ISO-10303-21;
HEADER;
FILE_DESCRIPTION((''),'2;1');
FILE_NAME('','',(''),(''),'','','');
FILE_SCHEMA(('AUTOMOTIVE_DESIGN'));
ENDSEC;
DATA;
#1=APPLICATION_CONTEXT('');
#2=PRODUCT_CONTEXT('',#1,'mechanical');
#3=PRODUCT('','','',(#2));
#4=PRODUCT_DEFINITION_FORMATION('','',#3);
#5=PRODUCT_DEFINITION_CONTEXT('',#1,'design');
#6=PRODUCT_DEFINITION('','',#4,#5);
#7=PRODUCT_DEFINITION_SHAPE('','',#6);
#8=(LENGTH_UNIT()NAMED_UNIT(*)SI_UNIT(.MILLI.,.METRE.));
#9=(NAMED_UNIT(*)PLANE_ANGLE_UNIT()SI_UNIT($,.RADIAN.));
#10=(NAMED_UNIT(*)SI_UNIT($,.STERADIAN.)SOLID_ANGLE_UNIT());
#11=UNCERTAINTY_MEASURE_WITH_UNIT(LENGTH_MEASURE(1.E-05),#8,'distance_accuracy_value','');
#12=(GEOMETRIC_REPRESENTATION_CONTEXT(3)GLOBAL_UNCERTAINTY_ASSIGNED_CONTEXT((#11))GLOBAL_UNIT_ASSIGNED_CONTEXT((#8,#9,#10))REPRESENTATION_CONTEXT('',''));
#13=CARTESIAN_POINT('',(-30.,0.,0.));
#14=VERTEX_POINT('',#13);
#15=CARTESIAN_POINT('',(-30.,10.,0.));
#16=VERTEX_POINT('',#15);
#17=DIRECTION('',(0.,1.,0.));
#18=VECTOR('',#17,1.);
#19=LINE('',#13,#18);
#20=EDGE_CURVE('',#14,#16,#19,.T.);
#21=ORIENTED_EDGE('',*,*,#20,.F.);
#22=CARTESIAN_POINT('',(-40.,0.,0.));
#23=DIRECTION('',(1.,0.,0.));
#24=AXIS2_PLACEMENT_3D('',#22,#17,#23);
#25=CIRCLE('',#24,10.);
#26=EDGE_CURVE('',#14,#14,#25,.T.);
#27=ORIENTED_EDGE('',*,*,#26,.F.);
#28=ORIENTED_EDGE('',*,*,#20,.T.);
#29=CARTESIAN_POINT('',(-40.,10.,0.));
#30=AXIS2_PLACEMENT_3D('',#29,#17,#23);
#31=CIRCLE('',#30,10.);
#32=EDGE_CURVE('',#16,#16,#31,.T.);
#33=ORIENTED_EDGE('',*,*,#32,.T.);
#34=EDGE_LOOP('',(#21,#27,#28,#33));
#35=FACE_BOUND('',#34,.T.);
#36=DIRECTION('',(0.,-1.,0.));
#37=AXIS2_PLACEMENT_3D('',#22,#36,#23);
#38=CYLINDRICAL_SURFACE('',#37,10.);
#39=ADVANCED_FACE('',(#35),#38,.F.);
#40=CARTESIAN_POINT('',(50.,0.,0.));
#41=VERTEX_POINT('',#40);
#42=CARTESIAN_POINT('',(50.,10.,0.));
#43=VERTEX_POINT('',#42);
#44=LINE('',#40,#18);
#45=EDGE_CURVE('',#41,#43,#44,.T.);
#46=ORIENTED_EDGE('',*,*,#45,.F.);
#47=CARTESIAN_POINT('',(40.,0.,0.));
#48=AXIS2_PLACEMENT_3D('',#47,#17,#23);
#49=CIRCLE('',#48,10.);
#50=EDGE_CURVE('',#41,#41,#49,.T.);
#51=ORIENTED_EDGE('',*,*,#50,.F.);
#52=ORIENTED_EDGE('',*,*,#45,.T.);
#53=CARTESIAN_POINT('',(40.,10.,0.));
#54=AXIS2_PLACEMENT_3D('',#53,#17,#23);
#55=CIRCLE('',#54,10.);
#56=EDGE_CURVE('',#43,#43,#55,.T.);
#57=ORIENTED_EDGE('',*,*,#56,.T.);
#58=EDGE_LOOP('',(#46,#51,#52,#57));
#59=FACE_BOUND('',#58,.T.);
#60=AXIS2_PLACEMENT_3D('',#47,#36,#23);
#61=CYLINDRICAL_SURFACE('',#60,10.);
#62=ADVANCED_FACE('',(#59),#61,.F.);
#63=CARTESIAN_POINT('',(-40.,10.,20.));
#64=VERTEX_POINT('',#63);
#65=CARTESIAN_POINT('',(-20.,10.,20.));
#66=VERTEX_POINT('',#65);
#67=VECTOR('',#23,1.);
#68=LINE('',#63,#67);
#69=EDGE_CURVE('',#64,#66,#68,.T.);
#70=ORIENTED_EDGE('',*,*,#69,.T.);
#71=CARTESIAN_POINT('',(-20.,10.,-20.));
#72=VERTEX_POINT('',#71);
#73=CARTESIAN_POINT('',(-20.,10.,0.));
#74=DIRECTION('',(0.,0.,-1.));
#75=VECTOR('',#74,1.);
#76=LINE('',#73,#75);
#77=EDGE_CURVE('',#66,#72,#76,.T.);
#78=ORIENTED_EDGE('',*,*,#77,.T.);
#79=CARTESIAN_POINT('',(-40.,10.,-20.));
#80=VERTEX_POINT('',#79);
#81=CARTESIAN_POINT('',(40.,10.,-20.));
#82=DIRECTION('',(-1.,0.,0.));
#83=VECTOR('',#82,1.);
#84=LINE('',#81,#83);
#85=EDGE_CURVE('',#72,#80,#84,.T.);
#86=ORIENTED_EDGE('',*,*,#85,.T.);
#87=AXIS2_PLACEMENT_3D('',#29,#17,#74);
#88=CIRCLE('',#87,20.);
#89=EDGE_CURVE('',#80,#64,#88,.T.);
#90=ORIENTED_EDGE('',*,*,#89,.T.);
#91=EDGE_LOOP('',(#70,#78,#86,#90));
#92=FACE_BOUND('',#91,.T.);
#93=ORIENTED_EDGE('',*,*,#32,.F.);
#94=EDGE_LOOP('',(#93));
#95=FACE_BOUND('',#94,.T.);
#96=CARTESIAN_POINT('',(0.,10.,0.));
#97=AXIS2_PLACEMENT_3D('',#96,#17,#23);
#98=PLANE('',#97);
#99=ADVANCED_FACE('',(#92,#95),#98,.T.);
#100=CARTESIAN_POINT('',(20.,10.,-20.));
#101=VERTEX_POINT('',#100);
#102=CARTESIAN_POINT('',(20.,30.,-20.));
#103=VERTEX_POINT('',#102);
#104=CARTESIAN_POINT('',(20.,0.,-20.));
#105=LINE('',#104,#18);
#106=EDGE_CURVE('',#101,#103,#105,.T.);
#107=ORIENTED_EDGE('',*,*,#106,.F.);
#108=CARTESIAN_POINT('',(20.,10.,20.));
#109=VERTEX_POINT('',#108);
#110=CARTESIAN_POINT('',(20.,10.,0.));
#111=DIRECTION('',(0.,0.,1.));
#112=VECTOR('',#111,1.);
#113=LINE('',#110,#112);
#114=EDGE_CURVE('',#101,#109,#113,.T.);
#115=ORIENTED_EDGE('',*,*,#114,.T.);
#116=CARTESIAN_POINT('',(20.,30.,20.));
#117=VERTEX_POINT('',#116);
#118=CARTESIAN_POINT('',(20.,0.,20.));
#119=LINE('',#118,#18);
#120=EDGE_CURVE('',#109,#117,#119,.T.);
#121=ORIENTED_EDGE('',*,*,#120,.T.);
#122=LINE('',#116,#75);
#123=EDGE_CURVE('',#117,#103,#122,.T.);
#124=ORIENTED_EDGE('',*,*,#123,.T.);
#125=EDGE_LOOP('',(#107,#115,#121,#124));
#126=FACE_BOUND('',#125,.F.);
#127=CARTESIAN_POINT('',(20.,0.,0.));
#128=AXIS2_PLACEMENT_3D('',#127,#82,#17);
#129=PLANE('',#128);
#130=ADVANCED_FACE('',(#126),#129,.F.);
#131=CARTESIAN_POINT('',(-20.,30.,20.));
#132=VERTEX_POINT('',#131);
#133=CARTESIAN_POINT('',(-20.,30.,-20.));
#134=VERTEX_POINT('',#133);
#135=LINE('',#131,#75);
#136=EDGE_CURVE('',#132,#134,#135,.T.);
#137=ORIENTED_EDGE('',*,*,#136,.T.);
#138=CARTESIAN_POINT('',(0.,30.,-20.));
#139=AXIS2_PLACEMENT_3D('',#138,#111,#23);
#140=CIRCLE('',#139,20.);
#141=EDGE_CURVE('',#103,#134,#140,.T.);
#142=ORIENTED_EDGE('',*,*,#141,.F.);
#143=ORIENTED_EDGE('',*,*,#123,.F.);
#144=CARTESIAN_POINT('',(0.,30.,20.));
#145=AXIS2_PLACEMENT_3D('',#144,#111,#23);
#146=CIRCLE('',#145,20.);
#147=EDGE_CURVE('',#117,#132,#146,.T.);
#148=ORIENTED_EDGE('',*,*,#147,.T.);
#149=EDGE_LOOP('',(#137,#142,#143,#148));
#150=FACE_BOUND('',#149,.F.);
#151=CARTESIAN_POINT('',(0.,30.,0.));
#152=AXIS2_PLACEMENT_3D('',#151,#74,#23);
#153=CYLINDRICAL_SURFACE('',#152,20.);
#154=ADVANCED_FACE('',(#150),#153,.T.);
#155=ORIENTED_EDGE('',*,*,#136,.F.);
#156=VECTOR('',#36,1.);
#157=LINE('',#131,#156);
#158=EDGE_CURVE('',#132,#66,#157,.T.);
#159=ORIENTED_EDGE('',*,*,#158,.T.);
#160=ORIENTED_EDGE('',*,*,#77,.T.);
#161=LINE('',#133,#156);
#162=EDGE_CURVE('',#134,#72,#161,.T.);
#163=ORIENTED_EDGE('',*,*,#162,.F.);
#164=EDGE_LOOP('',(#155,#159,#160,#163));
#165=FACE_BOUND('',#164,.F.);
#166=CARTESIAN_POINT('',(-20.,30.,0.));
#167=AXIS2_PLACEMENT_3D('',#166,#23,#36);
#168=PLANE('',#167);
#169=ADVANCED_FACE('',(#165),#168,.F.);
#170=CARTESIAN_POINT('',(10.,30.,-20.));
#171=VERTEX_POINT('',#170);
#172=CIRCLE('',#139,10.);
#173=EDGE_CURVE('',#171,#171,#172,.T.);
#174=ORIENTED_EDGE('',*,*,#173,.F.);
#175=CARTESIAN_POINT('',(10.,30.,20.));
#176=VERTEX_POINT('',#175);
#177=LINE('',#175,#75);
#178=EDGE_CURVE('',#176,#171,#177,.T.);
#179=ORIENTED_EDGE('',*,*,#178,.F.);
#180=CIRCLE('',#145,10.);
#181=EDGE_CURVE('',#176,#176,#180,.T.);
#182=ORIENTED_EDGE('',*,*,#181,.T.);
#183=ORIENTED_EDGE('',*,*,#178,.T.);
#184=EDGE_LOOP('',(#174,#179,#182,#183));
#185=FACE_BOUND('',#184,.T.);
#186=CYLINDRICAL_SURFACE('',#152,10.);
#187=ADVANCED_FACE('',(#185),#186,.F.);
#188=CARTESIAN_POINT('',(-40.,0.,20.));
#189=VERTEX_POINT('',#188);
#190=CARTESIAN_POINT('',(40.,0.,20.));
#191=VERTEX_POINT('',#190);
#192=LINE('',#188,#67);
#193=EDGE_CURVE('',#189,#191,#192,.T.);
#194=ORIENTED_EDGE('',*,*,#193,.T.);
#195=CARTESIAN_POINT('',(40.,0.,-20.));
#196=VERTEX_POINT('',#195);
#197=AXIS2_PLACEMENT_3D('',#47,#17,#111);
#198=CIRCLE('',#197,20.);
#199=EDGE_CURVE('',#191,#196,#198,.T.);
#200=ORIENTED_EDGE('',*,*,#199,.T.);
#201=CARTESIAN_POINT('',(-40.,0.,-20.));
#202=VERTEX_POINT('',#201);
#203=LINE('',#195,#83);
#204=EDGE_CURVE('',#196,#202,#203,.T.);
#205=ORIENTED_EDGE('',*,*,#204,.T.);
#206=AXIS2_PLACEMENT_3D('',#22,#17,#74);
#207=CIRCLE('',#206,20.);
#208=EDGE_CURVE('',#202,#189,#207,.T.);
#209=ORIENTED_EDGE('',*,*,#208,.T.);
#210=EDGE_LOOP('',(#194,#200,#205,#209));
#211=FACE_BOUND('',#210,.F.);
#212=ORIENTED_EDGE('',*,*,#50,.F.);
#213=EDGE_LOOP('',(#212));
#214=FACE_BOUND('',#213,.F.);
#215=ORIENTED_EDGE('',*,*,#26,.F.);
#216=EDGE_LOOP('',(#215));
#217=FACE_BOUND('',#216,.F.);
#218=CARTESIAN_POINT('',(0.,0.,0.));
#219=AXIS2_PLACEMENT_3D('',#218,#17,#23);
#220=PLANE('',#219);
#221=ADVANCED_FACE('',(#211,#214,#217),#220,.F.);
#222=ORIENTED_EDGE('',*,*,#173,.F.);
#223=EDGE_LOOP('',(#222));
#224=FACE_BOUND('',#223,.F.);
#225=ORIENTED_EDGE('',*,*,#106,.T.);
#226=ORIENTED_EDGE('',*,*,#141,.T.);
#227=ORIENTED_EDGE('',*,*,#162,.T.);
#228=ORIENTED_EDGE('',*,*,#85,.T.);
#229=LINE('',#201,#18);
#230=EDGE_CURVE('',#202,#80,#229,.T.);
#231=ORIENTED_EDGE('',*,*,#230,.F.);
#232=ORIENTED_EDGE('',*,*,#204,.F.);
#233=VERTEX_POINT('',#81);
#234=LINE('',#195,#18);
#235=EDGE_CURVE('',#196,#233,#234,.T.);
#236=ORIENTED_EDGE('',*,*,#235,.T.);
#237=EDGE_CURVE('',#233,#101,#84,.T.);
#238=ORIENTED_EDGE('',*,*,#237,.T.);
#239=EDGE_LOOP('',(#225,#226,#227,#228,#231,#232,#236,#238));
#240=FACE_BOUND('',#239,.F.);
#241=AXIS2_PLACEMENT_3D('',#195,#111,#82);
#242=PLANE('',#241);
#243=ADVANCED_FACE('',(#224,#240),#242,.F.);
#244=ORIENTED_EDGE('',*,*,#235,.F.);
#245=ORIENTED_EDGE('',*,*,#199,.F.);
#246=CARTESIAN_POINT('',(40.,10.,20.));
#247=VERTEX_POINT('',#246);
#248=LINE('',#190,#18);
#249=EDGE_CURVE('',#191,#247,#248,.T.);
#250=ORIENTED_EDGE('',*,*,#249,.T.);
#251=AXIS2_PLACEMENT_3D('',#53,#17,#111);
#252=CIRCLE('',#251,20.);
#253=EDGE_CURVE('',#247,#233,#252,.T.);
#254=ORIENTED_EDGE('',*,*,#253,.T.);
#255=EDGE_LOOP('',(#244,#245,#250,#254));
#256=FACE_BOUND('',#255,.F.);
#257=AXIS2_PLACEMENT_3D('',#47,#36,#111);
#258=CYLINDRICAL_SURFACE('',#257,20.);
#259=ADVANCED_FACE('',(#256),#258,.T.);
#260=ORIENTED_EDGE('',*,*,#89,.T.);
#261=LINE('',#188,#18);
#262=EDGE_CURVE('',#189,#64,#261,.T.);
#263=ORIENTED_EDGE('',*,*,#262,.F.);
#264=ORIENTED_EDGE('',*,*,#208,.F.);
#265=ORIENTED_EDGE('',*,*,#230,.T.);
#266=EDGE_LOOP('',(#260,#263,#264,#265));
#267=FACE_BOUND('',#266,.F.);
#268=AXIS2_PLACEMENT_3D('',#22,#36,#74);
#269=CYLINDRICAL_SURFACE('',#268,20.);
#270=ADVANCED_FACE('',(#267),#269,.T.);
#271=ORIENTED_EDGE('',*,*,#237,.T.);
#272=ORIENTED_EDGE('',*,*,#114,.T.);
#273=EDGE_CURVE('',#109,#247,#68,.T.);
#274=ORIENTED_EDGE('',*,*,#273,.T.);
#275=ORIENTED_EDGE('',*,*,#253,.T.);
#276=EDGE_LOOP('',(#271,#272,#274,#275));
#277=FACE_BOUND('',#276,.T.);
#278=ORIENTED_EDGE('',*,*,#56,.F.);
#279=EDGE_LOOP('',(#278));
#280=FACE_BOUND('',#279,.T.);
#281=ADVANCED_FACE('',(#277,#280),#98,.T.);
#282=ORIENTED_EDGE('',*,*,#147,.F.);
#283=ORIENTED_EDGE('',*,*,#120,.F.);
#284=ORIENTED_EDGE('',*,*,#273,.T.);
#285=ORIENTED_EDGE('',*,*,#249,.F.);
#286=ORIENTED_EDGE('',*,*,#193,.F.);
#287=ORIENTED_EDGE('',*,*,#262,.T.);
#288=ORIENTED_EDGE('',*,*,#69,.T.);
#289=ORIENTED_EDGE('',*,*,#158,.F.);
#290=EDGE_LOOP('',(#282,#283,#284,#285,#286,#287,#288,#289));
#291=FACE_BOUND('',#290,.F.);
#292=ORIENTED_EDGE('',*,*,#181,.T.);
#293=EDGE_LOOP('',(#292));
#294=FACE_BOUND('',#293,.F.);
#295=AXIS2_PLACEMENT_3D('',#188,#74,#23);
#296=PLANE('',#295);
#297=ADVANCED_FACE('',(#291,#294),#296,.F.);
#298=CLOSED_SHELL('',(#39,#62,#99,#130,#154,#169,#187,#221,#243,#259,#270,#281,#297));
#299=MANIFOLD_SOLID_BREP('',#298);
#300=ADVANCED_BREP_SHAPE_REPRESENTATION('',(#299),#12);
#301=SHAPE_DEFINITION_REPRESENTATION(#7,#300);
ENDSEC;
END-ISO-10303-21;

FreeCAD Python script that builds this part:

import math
import FreeCAD as App
import Part
import Sketcher

doc = App.newDocument("Part")
body = doc.addObject("PartDesign::Body", "Body")

sketch1 = body.newObject("Sketcher::SketchObject", "Sketch")
sketch1.AttachmentSupport = (doc.getObject("XZ_Plane"), [""])
sketch1.MapMode = "FlatFace"
sketch1.addGeometry([
    Part.ArcOfCircle(Part.Circle(App.Vector(-40, 0, 0), App.Vector(0, 0, 1), 20), math.radians(90), math.radians(270)),
    Part.LineSegment(App.Vector(-40, 20, 0), App.Vector(40, 20, 0)),
    Part.ArcOfCircle(Part.Circle(App.Vector(40, 0, 0), App.Vector(0, 0, 1), 20), math.radians(-90), math.radians(90)),
    Part.LineSegment(App.Vector(40, -20, 0), App.Vector(-40, -20, 0)),
    Part.Circle(App.Vector(-40, 0, 0), App.Vector(0, 0, 1), 10),
    Part.Circle(App.Vector(40, 0, 0), App.Vector(0, 0, 1), 10),
], False)
sketch1.addConstraint([
    Sketcher.Constraint("Tangent", 0, 1, 1, 1),
    Sketcher.Constraint("Tangent", 1, 2, 2, 2),
    Sketcher.Constraint("Tangent", 2, 1, 3, 1),
    Sketcher.Constraint("Tangent", 3, 2, 0, 2),
    Sketcher.Constraint("Horizontal", 1),
    Sketcher.Constraint("Horizontal", 3),
    Sketcher.Constraint("Coincident", 4, 3, 0, 3),
    Sketcher.Constraint("Coincident", 5, 3, 2, 3),
    Sketcher.Constraint("Equal", 4, 5),
    Sketcher.Constraint("Symmetric", 0, 3, 2, 3, -1, 1),
    Sketcher.Constraint("Radius", 0, 20.0),
    Sketcher.Constraint("DistanceX", 1, 1, 1, 2, 80.0),
    Sketcher.Constraint("Diameter", 4, 20.0),
])
pad1 = body.newObject("PartDesign::Pad", "Pad")
pad1.Profile = sketch1
pad1.Length = 10
pad1.Reversed = True

sketch2 = body.newObject("Sketcher::SketchObject", "Sketch001")
sketch2.AttachmentSupport = (doc.getObject("XY_Plane"), [""])
sketch2.MapMode = "FlatFace"
sketch2.addGeometry([
    Part.LineSegment(App.Vector(-20, 30, 0), App.Vector(-20, 0, 0)),
    Part.LineSegment(App.Vector(-20, 0, 0), App.Vector(20, 0, 0)),
    Part.LineSegment(App.Vector(20, 0, 0), App.Vector(20, 30, 0)),
    Part.ArcOfCircle(Part.Circle(App.Vector(0, 30, 0), App.Vector(0, 0, 1), 20), math.radians(0), math.radians(180)),
    Part.Circle(App.Vector(0, 30, 0), App.Vector(0, 0, 1), 10),
], False)
sketch2.addConstraint([
    Sketcher.Constraint("Coincident", 0, 2, 1, 1),
    Sketcher.Constraint("Coincident", 1, 2, 2, 1),
    Sketcher.Constraint("Tangent", 2, 2, 3, 1),
    Sketcher.Constraint("Tangent", 3, 2, 0, 1),
    Sketcher.Constraint("Vertical", 0),
    Sketcher.Constraint("Horizontal", 1),
    Sketcher.Constraint("Vertical", 2),
    Sketcher.Constraint("Coincident", 4, 3, 3, 3),
    Sketcher.Constraint("Symmetric", 0, 2, 1, 2, -1, 1),
    Sketcher.Constraint("Diameter", 4, 20.0),
    Sketcher.Constraint("Radius", 3, 20.0),
    Sketcher.Constraint("DistanceY", 0, 2, 0, 1, 30.0),
])
pad2 = body.newObject("PartDesign::Pad", "Pad001")
pad2.Profile = sketch2
pad2.Length = 40
pad2.Midplane = True

doc.recompute()
